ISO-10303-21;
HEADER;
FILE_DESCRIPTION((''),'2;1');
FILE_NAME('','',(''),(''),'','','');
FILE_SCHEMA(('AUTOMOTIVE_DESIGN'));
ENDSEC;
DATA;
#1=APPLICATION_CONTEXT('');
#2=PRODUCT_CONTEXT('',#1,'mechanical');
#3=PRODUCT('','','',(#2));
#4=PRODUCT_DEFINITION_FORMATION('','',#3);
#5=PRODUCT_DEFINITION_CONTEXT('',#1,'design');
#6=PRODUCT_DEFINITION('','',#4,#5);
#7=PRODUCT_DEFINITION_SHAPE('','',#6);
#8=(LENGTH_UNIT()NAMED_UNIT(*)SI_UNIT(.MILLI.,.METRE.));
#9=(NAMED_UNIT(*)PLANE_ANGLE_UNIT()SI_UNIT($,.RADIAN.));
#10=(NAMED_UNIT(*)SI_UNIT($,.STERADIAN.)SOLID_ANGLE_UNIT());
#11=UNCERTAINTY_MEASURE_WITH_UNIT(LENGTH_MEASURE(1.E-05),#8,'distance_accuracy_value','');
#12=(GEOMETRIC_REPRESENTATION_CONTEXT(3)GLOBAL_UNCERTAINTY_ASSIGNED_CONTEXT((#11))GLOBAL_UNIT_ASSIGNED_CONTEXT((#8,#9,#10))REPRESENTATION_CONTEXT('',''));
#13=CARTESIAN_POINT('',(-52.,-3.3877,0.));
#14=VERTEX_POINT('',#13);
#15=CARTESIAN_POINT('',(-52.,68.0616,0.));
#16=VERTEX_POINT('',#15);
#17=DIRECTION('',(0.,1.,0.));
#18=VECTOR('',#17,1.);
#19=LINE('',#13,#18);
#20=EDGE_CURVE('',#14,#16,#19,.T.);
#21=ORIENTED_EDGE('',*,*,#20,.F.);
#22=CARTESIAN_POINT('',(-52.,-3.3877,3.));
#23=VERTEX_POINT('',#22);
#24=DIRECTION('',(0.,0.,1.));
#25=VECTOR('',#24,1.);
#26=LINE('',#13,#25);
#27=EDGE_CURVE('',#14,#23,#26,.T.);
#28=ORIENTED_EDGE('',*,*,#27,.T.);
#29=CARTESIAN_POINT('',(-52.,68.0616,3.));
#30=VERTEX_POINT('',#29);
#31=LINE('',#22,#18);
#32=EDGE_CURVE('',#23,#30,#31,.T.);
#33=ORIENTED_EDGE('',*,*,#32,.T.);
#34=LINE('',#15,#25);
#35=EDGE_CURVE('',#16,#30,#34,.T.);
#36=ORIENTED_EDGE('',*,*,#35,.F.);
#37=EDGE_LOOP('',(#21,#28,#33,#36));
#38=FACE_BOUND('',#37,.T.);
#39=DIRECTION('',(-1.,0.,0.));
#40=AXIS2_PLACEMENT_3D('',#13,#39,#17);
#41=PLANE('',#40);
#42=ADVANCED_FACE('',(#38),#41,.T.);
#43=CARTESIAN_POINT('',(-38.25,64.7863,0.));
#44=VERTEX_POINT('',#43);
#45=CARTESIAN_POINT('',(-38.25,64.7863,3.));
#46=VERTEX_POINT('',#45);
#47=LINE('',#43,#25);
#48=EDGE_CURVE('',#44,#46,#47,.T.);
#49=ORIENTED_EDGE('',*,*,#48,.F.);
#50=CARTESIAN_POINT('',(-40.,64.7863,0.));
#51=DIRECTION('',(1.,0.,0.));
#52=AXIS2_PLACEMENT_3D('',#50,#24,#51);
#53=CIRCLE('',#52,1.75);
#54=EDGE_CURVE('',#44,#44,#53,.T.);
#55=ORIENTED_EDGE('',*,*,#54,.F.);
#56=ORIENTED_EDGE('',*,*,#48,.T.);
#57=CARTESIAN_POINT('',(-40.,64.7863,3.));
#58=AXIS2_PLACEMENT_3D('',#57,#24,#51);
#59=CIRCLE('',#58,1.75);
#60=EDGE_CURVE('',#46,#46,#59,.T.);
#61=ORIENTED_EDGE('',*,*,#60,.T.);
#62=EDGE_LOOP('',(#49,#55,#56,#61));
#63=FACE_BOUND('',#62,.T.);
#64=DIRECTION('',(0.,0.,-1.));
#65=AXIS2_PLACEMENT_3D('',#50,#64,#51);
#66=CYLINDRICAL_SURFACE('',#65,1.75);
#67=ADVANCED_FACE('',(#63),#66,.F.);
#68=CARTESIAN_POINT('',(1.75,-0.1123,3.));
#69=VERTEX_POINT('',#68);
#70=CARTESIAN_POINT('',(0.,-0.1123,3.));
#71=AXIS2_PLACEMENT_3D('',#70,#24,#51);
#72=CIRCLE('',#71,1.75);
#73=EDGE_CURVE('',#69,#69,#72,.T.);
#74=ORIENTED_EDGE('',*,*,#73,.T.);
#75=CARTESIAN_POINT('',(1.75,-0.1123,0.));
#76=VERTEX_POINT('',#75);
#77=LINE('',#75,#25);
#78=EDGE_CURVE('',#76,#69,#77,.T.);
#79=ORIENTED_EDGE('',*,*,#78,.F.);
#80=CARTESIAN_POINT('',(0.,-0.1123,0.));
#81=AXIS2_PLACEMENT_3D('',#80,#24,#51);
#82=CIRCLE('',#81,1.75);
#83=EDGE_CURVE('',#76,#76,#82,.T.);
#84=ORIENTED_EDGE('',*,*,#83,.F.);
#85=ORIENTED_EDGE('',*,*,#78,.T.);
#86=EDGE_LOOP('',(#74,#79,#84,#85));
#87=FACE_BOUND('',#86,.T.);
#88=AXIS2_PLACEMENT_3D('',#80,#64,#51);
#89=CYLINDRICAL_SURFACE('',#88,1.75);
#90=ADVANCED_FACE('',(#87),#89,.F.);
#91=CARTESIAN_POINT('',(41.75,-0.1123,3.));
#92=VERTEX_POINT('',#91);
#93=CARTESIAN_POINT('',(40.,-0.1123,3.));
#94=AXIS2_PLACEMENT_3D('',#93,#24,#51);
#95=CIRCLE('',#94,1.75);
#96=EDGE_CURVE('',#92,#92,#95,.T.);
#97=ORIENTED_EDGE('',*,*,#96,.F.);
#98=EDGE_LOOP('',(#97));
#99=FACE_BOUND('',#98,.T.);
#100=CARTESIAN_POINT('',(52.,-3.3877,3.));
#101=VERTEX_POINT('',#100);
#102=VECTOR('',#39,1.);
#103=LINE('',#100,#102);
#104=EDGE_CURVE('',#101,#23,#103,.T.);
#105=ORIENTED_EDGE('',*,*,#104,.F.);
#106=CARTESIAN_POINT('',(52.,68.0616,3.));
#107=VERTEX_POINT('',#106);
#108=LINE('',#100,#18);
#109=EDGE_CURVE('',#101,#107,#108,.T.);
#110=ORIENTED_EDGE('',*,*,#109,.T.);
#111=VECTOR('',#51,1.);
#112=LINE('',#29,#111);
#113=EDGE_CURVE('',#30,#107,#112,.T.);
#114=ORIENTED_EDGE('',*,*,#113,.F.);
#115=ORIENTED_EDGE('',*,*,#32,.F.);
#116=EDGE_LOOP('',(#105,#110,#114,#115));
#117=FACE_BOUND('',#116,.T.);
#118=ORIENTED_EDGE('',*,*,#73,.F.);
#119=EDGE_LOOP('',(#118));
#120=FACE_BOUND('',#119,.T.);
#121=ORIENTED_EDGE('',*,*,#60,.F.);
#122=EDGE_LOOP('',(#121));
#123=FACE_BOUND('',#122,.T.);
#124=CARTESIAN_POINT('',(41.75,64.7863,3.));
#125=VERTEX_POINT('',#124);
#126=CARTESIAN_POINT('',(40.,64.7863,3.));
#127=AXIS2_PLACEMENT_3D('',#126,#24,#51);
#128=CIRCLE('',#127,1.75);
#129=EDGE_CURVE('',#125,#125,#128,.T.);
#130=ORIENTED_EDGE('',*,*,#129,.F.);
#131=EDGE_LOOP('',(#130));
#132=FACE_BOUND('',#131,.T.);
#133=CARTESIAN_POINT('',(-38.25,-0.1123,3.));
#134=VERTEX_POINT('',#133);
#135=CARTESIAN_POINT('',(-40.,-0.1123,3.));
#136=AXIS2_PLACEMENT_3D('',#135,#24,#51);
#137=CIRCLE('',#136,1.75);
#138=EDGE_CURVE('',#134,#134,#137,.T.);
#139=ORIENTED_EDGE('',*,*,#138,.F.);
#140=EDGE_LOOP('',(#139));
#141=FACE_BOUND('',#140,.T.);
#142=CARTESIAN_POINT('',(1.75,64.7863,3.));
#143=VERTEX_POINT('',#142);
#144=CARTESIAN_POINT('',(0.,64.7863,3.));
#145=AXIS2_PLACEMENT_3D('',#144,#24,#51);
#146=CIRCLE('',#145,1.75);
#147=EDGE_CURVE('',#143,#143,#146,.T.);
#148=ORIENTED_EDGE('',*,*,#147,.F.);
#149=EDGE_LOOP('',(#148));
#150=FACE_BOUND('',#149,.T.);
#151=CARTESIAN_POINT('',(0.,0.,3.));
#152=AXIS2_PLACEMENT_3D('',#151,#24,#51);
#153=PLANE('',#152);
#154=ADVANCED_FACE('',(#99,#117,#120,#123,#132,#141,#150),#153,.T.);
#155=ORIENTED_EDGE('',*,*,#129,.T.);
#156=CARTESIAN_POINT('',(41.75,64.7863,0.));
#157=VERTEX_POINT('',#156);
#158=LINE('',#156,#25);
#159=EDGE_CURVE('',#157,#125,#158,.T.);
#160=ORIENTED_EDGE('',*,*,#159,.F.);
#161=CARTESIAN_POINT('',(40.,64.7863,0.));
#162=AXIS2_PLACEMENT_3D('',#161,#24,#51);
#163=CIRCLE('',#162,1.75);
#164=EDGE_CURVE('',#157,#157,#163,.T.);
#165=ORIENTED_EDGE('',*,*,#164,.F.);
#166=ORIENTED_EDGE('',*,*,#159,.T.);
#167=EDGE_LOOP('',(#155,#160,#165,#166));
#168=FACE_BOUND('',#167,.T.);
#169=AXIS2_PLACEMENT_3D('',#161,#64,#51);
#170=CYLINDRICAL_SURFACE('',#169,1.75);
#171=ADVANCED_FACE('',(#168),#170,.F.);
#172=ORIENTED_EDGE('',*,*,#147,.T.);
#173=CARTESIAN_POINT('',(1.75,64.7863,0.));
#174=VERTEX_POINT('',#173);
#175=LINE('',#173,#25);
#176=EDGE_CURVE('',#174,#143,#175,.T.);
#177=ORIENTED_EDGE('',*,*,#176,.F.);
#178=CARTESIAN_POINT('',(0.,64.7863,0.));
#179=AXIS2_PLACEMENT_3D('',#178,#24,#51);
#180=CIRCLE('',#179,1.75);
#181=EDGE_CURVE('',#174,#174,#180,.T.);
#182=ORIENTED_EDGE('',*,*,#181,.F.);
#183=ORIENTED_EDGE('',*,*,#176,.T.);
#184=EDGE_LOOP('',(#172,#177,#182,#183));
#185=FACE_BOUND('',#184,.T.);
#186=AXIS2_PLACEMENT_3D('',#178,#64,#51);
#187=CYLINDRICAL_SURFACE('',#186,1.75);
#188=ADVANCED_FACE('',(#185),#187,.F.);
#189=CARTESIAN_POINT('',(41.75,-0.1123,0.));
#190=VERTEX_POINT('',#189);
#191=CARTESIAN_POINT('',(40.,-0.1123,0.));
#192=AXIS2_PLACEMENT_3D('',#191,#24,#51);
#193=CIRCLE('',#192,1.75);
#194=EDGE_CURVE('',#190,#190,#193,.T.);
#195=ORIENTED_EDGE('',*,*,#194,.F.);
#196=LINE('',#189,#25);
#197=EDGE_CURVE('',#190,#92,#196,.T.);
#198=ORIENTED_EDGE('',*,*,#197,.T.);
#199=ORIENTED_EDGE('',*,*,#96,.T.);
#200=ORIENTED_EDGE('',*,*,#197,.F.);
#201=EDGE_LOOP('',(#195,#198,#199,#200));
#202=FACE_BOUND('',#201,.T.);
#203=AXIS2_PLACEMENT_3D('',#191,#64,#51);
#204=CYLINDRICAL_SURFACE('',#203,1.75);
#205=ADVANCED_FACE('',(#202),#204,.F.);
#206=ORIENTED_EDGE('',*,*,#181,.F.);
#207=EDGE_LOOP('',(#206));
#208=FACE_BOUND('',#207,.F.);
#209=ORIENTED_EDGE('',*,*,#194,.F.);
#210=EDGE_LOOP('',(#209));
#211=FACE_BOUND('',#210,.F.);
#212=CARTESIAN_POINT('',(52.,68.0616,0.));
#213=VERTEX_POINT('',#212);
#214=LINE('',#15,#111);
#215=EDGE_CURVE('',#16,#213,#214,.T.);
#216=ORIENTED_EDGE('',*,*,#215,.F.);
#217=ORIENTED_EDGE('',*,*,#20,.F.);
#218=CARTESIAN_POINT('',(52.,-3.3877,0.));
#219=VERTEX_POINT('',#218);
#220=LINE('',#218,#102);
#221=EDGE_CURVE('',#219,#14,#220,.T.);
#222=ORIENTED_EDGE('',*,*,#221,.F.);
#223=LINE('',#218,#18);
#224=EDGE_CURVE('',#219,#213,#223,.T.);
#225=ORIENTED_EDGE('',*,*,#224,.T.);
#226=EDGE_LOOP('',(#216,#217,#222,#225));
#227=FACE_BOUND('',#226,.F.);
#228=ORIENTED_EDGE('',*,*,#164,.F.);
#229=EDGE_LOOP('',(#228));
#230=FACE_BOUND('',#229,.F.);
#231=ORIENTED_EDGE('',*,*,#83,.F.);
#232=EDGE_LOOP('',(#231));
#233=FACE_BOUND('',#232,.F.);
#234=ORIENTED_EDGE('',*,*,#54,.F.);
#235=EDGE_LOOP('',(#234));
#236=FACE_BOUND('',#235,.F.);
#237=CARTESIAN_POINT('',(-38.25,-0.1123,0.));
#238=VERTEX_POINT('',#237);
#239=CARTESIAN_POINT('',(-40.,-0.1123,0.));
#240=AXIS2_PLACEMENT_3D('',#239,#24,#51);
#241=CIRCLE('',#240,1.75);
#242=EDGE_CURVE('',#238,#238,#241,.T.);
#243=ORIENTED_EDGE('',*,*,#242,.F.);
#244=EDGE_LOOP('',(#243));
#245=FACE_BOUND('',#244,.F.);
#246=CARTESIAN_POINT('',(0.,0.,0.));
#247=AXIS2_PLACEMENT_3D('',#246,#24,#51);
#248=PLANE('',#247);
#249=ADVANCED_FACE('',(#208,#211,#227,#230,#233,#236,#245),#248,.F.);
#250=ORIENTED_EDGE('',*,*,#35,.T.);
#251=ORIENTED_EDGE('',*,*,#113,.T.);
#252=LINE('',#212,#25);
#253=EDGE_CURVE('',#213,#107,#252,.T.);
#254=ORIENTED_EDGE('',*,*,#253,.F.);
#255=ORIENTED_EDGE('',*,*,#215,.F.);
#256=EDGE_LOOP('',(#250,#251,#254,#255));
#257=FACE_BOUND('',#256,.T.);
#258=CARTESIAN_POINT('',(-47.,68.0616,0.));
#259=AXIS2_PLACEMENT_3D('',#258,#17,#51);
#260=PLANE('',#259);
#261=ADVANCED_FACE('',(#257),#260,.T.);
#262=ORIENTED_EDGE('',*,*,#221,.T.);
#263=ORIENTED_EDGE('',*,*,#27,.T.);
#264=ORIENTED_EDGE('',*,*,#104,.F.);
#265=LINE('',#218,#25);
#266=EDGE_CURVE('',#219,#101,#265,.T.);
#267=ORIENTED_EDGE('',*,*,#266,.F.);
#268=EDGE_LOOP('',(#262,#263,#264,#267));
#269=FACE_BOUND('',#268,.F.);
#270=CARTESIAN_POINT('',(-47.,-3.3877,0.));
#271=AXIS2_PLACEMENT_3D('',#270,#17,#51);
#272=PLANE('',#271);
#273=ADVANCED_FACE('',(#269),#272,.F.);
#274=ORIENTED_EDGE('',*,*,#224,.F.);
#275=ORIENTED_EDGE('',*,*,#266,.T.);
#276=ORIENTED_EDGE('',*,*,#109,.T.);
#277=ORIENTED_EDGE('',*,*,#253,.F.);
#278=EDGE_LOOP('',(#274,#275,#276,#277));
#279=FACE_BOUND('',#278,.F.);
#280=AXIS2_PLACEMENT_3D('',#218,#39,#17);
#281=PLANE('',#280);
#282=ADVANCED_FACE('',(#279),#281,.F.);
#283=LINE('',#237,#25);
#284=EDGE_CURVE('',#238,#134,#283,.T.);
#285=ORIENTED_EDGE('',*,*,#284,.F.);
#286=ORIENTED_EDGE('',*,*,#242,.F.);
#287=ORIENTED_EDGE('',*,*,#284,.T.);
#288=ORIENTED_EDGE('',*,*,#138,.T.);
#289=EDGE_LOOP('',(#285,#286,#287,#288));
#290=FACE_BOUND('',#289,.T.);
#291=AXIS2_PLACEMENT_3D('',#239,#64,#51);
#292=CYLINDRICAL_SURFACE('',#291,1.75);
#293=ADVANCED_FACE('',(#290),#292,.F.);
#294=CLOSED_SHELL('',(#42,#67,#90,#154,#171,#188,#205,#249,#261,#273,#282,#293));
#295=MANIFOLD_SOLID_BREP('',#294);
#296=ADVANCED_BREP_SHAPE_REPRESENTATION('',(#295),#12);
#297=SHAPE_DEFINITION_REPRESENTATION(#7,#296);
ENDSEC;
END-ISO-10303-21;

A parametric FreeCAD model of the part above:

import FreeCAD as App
import Part
import Sketcher

V = App.Vector
Q = App.Units.Quantity


def add_polygon(sketch, points):
    """Adds a closed chain of lines whose ends are joined by coincident constraints."""
    first, n = sketch.GeometryCount, len(points)
    for a, b in zip(points, points[1:] + points[:1]):
        sketch.addGeometry(Part.LineSegment(App.Vector(*a, 0), App.Vector(*b, 0)), False)
    for i in range(n):
        sketch.addConstraint(Sketcher.Constraint("Coincident", first + i, 2, first + (i + 1) % n, 1))

doc = App.newDocument("Part")
body = doc.addObject("PartDesign::Body", "Body")

# Sketch on XY plane
sketch1 = body.newObject("Sketcher::SketchObject", "Sketch")
sketch1.AttachmentSupport = (doc.getObject("XY_Plane"), [""])
sketch1.MapMode = "FlatFace"
add_polygon(sketch1, [(52, -3.3877), (52, 68.0616), (-52, 68.0616), (-52, -3.3877)])  # lines 0-3
sketch1.addGeometry(Part.Circle(V(0, 64.7863, 0), V(0, 0, 1), 1.75), False)  # 4
sketch1.addGeometry(Part.Circle(V(40, 64.7863, 0), V(0, 0, 1), 1.75), False)  # 5
sketch1.addGeometry(Part.Circle(V(-40, 64.7863, 0), V(0, 0, 1), 1.75), False)  # 6
sketch1.addGeometry(Part.Circle(V(40, -0.1123, 0), V(0, 0, 1), 1.75), False)  # 7
sketch1.addGeometry(Part.Circle(V(-40, -0.1123, 0), V(0, 0, 1), 1.75), False)  # 8
sketch1.addGeometry(Part.Circle(V(0, -0.1123, 0), V(0, 0, 1), 1.75), False)  # 9
sketch1.addConstraint(Sketcher.Constraint("Vertical", 0))
sketch1.addConstraint(Sketcher.Constraint("Horizontal", 1))
sketch1.addConstraint(Sketcher.Constraint("Vertical", 2))
sketch1.addConstraint(Sketcher.Constraint("Horizontal", 3))
sketch1.addConstraint(Sketcher.Constraint("Equal", 4, 5))
sketch1.addConstraint(Sketcher.Constraint("Equal", 5, 6))
sketch1.addConstraint(Sketcher.Constraint("Equal", 6, 7))
sketch1.addConstraint(Sketcher.Constraint("Equal", 7, 8))
sketch1.addConstraint(Sketcher.Constraint("Equal", 8, 9))
sketch1.addConstraint(Sketcher.Constraint("Symmetric", 5, 3, 6, 3, -2))
sketch1.addConstraint(Sketcher.Constraint("Symmetric", 7, 3, 8, 3, -2))
sketch1.addConstraint(Sketcher.Constraint("PointOnObject", 4, 3, -2))
sketch1.addConstraint(Sketcher.Constraint("PointOnObject", 9, 3, -2))
sketch1.addConstraint(Sketcher.Constraint("Horizontal", 4, 3, 5, 3))
sketch1.addConstraint(Sketcher.Constraint("Horizontal", 8, 3, 9, 3))
sketch1.addConstraint(Sketcher.Constraint("Vertical", 5, 3, 7, 3))
sketch1.addConstraint(Sketcher.Constraint("Diameter", 4, Q("3.5 mm")))
sketch1.addConstraint(Sketcher.Constraint("DistanceX", 1, 2, 1, 1, Q("104 mm")))
sketch1.addConstraint(Sketcher.Constraint("DistanceX", -1, 1, 5, 3, Q("40 mm")))
sketch1.addConstraint(Sketcher.Constraint("DistanceX", -1, 1, 0, 2, Q("52 mm")))
sketch1.addConstraint(Sketcher.Constraint("DistanceY", 0, 1, 0, 2, Q("71.4493 mm")))
sketch1.addConstraint(Sketcher.Constraint("DistanceY", 7, 3, 0, 2, Q("68.174 mm")))
sketch1.addConstraint(Sketcher.Constraint("DistanceY", 2, 2, 6, 3, Q("68.174 mm")))
sketch1.addConstraint(Sketcher.Constraint("DistanceY", -1, 1, 4, 3, Q("64.7863 mm")))
pad1 = body.newObject("PartDesign::Pad", "Pad")
pad1.Profile = sketch1
pad1.Length = 3

doc.recompute()
